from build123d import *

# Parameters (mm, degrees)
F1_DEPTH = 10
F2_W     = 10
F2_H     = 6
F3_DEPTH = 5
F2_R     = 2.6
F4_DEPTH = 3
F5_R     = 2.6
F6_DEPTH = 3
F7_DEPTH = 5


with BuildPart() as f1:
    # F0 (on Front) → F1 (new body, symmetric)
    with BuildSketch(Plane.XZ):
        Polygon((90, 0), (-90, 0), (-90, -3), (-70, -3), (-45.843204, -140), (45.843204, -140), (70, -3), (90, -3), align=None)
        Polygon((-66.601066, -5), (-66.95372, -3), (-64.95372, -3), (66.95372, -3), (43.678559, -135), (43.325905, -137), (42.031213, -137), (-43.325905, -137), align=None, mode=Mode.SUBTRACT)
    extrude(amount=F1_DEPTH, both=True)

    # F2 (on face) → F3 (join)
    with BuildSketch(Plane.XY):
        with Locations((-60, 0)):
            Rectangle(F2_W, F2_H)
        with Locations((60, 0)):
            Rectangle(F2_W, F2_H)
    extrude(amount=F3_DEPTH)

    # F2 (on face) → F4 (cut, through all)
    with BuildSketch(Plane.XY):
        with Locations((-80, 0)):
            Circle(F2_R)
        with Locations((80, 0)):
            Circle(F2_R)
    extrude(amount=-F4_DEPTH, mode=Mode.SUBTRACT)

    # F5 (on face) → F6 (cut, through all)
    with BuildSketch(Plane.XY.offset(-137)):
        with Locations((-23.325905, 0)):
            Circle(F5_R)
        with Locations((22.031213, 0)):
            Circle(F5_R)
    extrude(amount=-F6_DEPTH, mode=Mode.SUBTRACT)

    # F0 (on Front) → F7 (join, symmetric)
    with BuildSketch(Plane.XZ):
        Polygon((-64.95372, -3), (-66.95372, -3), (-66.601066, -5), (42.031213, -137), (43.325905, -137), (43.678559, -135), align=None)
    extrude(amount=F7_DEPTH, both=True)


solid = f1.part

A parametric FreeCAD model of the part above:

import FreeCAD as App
import Part
import Sketcher
Q = App.Units.Quantity

doc = App.newDocument("Part")
body = doc.addObject("PartDesign::Body", "Body")

sketch1 = body.newObject("Sketcher::SketchObject", "Sketch")
sketch1.AttachmentSupport = (doc.getObject("XZ_Plane"), [""])
sketch1.MapMode = "FlatFace"
sketch1.addGeometry(Part.LineSegment(App.Vector(90, 0, 0), App.Vector(-90, 0, 0)), False)
sketch1.addGeometry(Part.LineSegment(App.Vector(-90, 0, 0), App.Vector(-90, -3, 0)), False)
sketch1.addGeometry(Part.LineSegment(App.Vector(-90, -3, 0), App.Vector(-70, -3, 0)), False)
sketch1.addGeometry(Part.LineSegment(App.Vector(-70, -3, 0), App.Vector(-45.8, -140, 0)), False)
sketch1.addGeometry(Part.LineSegment(App.Vector(-45.8, -140, 0), App.Vector(45.8, -140, 0)), False)
sketch1.addGeometry(Part.LineSegment(App.Vector(45.8, -140, 0), App.Vector(70, -3, 0)), False)
sketch1.addGeometry(Part.LineSegment(App.Vector(70, -3, 0), App.Vector(90, -3, 0)), False)
sketch1.addGeometry(Part.LineSegment(App.Vector(90, -3, 0), App.Vector(90, 0, 0)), False)
sketch1.addGeometry(Part.LineSegment(App.Vector(-43.3, -137, 0), App.Vector(-66.6, -5, 0)), False)
sketch1.addGeometry(Part.LineSegment(App.Vector(-66.6, -5, 0), App.Vector(-67, -3, 0)), False)
sketch1.addGeometry(Part.LineSegment(App.Vector(-67, -3, 0), App.Vector(67, -3, 0)), False)
sketch1.addGeometry(Part.LineSegment(App.Vector(67, -3, 0), App.Vector(43.7, -135, 0)), False)
sketch1.addGeometry(Part.LineSegment(App.Vector(43.7, -135, 0), App.Vector(43.3, -137, 0)), False)
sketch1.addGeometry(Part.LineSegment(App.Vector(43.3, -137, 0), App.Vector(-43.3, -137, 0)), False)
sketch1.addConstraint(Sketcher.Constraint("Coincident", 0, 2, 1, 1))
sketch1.addConstraint(Sketcher.Constraint("Coincident", 1, 2, 2, 1))
sketch1.addConstraint(Sketcher.Constraint("Coincident", 2, 2, 3, 1))
sketch1.addConstraint(Sketcher.Constraint("Coincident", 3, 2, 4, 1))
sketch1.addConstraint(Sketcher.Constraint("Coincident", 4, 2, 5, 1))
sketch1.addConstraint(Sketcher.Constraint("Coincident", 5, 2, 6, 1))
sketch1.addConstraint(Sketcher.Constraint("Coincident", 6, 2, 7, 1))
sketch1.addConstraint(Sketcher.Constraint("Coincident", 7, 2, 0, 1))
sketch1.addConstraint(Sketcher.Constraint("Coincident", 8, 2, 9, 1))
sketch1.addConstraint(Sketcher.Constraint("Coincident", 9, 2, 10, 1))
sketch1.addConstraint(Sketcher.Constraint("Coincident", 10, 2, 11, 1))
sketch1.addConstraint(Sketcher.Constraint("Coincident", 11, 2, 12, 1))
sketch1.addConstraint(Sketcher.Constraint("Coincident", 12, 2, 13, 1))
sketch1.addConstraint(Sketcher.Constraint("Coincident", 13, 2, 8, 1))
sketch1.addConstraint(Sketcher.Constraint("Horizontal", 0))
sketch1.addConstraint(Sketcher.Constraint("Vertical", 1))
sketch1.addConstraint(Sketcher.Constraint("Horizontal", 2))
sketch1.addConstraint(Sketcher.Constraint("Horizontal", 4))
sketch1.addConstraint(Sketcher.Constraint("Horizontal", 6))
sketch1.addConstraint(Sketcher.Constraint("Vertical", 7))
sketch1.addConstraint(Sketcher.Constraint("Horizontal", 10))
sketch1.addConstraint(Sketcher.Constraint("Horizontal", 13))
sketch1.addConstraint(Sketcher.Constraint("Symmetric", 0, 2, 7, 2, -1, 1))
sketch1.addConstraint(Sketcher.Constraint("Symmetric", 2, 2, 5, 2, -2))
sketch1.addConstraint(Sketcher.Constraint("Parallel", 3, 8))
sketch1.addConstraint(Sketcher.Constraint("Parallel", 8, 9))
sketch1.addConstraint(Sketcher.Constraint("Parallel", 5, 11))
sketch1.addConstraint(Sketcher.Constraint("Parallel", 11, 12))
sketch1.addConstraint(Sketcher.Constraint("Horizontal", 6, 2, 9, 2))
sketch1.addConstraint(Sketcher.Constraint("Equal", 3, 5))
sketch1.addConstraint(Sketcher.Constraint("Equal", 8, 11))
sketch1.addConstraint(Sketcher.Constraint("DistanceX", 0, 2, 0, 1, Q("180 mm")))
sketch1.addConstraint(Sketcher.Constraint("DistanceX", 2, 1, 2, 2, Q("20 mm")))
sketch1.addConstraint(Sketcher.Constraint("DistanceY", 1, 2, 1, 1, Q("3 mm")))
sketch1.addConstraint(Sketcher.Constraint("Angle", 3, Q("-80 deg")))
sketch1.addConstraint(Sketcher.Constraint("DistanceY", 3, 2, -1, 1, Q("140 mm")))
sketch1.addConstraint(Sketcher.Constraint("DistanceY", 8, 2, -1, 1, Q("5 mm")))
sketch1.addConstraint(Sketcher.Constraint("DistanceY", 11, 2, -1, 1, Q("135 mm")))
sketch1.addConstraint(Sketcher.Constraint("DistanceX", 10, 1, 10, 2, Q("133.90744 mm")))
sketch1.addConstraint(Sketcher.Constraint("DistanceX", 12, 2, 4, 2, Q("2.517299 mm")))
pad1 = body.newObject("PartDesign::Pad", "Pad")
pad1.Profile = sketch1
pad1.Length = 20
pad1.Midplane = True

sketch2 = body.newObject("Sketcher::SketchObject", "Sketch001")
sketch2.AttachmentSupport = (doc.getObject("XY_Plane"), [""])
sketch2.MapMode = "FlatFace"
sketch2.addGeometry(Part.LineSegment(App.Vector(-65, 3, 0), App.Vector(-65, -3, 0)), False)
sketch2.addGeometry(Part.LineSegment(App.Vector(-65, -3, 0), App.Vector(-55, -3, 0)), False)
sketch2.addGeometry(Part.LineSegment(App.Vector(-55, -3, 0), App.Vector(-55, 3, 0)), False)
sketch2.addGeometry(Part.LineSegment(App.Vector(-55, 3, 0), App.Vector(-65, 3, 0)), False)
sketch2.addGeometry(Part.LineSegment(App.Vector(55, 3, 0), App.Vector(55, -3, 0)), False)
sketch2.addGeometry(Part.LineSegment(App.Vector(55, -3, 0), App.Vector(65, -3, 0)), False)
sketch2.addGeometry(Part.LineSegment(App.Vector(65, -3, 0), App.Vector(65, 3, 0)), False)
sketch2.addGeometry(Part.LineSegment(App.Vector(65, 3, 0), App.Vector(55, 3, 0)), False)
sketch2.addConstraint(Sketcher.Constraint("Coincident", 0, 2, 1, 1))
sketch2.addConstraint(Sketcher.Constraint("Coincident", 1, 2, 2, 1))
sketch2.addConstraint(Sketcher.Constraint("Coincident", 2, 2, 3, 1))
sketch2.addConstraint(Sketcher.Constraint("Coincident", 3, 2, 0, 1))
sketch2.addConstraint(Sketcher.Constraint("Coincident", 4, 2, 5, 1))
sketch2.addConstraint(Sketcher.Constraint("Coincident", 5, 2, 6, 1))
sketch2.addConstraint(Sketcher.Constraint("Coincident", 6, 2, 7, 1))
sketch2.addConstraint(Sketcher.Constraint("Coincident", 7, 2, 4, 1))
sketch2.addConstraint(Sketcher.Constraint("Vertical", 0))
sketch2.addConstraint(Sketcher.Constraint("Horizontal", 1))
sketch2.addConstraint(Sketcher.Constraint("Vertical", 2))
sketch2.addConstraint(Sketcher.Constraint("Horizontal", 3))
sketch2.addConstraint(Sketcher.Constraint("Vertical", 4))
sketch2.addConstraint(Sketcher.Constraint("Horizontal", 5))
sketch2.addConstraint(Sketcher.Constraint("Vertical", 6))
sketch2.addConstraint(Sketcher.Constraint("Horizontal", 7))
sketch2.addConstraint(Sketcher.Constraint("Symmetric", 2, 2, 4, 2, -1, 1))
sketch2.addConstraint(Sketcher.Constraint("Symmetric", 0, 2, 6, 2, -1, 1))
sketch2.addConstraint(Sketcher.Constraint("Horizontal", 1, 2, 4, 2))
sketch2.addConstraint(Sketcher.Constraint("DistanceX", 1, 1, 1, 2, Q("10 mm")))
sketch2.addConstraint(Sketcher.Constraint("DistanceY", 0, 2, 0, 1, Q("6 mm")))
sketch2.addConstraint(Sketcher.Constraint("DistanceX", 0, 2, -1, 1, Q("65 mm")))
pad2 = body.newObject("PartDesign::Pad", "Pad001")
pad2.Profile = sketch2
pad2.Length = 5

sketch3 = body.newObject("Sketcher::SketchObject", "Sketch002")
sketch3.AttachmentSupport = (doc.getObject("XY_Plane"), [""])
sketch3.MapMode = "FlatFace"
sketch3.addGeometry(Part.Circle(App.Vector(-80, 0, 0), App.Vector(0, 0, 1), 2.6), False)
sketch3.addGeometry(Part.Circle(App.Vector(80, 0, 0), App.Vector(0, 0, 1), 2.6), False)
sketch3.addConstraint(Sketcher.Constraint("Equal", 0, 1))
sketch3.addConstraint(Sketcher.Constraint("Symmetric", 0, 3, 1, 3, -1, 1))
sketch3.addConstraint(Sketcher.Constraint("PointOnObject", 0, 3, -1))
sketch3.addConstraint(Sketcher.Constraint("Diameter", 0, Q("5.2 mm")))
sketch3.addConstraint(Sketcher.Constraint("DistanceX", 0, 3, -1, 1, Q("80 mm")))
pocket1 = body.newObject("PartDesign::Pocket", "Pocket")
pocket1.Profile = sketch3
pocket1.Type = "ThroughAll"

sketch4 = body.newObject("Sketcher::SketchObject", "Sketch003")
sketch4.AttachmentSupport = (doc.getObject("XY_Plane"), [""])
sketch4.MapMode = "FlatFace"
sketch4.AttachmentOffset = App.Placement(App.Vector(0, 0, -137), App.Rotation())
sketch4.addGeometry(Part.Circle(App.Vector(-23.3, 0, 0), App.Vector(0, 0, 1), 2.6), False)
sketch4.addGeometry(Part.Circle(App.Vector(22, 0, 0), App.Vector(0, 0, 1), 2.6), False)
sketch4.addConstraint(Sketcher.Constraint("Equal", 0, 1))
sketch4.addConstraint(Sketcher.Constraint("PointOnObject", 0, 3, -1))
sketch4.addConstraint(Sketcher.Constraint("PointOnObject", 1, 3, -1))
sketch4.addConstraint(Sketcher.Constraint("Diameter", 0, Q("5.2 mm")))
sketch4.addConstraint(Sketcher.Constraint("DistanceX", 0, 3, -1, 1, Q("23.325905 mm")))
sketch4.addConstraint(Sketcher.Constraint("DistanceX", -1, 1, 1, 3, Q("22.031213 mm")))
pocket2 = body.newObject("PartDesign::Pocket", "Pocket001")
pocket2.Profile = sketch4
pocket2.Type = "ThroughAll"

sketch5 = body.newObject("Sketcher::SketchObject", "Sketch004")
sketch5.AttachmentSupport = (doc.getObject("XZ_Plane"), [""])
sketch5.MapMode = "FlatFace"
sketch5.addGeometry(Part.LineSegment(App.Vector(-65, -3, 0), App.Vector(-67, -3, 0)), False)
sketch5.addGeometry(Part.LineSegment(App.Vector(-67, -3, 0), App.Vector(-66.6, -5, 0)), False)
sketch5.addGeometry(Part.LineSegment(App.Vector(-66.6, -5, 0), App.Vector(42, -137, 0)), False)
sketch5.addGeometry(Part.LineSegment(App.Vector(42, -137, 0), App.Vector(43.3, -137, 0)), False)
sketch5.addGeometry(Part.LineSegment(App.Vector(43.3, -137, 0), App.Vector(43.7, -135, 0)), False)
sketch5.addGeometry(Part.LineSegment(App.Vector(43.7, -135, 0), App.Vector(-65, -3, 0)), False)
sketch5.addConstraint(Sketcher.Constraint("Coincident", 0, 2, 1, 1))
sketch5.addConstraint(Sketcher.Constraint("Coincident", 1, 2, 2, 1))
sketch5.addConstraint(Sketcher.Constraint("Coincident", 2, 2, 3, 1))
sketch5.addConstraint(Sketcher.Constraint("Coincident", 3, 2, 4, 1))
sketch5.addConstraint(Sketcher.Constraint("Coincident", 4, 2, 5, 1))
sketch5.addConstraint(Sketcher.Constraint("Coincident", 5, 2, 0, 1))
sketch5.addConstraint(Sketcher.Constraint("Horizontal", 0))
sketch5.addConstraint(Sketcher.Constraint("Horizontal", 3))
sketch5.addConstraint(Sketcher.Constraint("Parallel", 2, 5))
sketch5.addConstraint(Sketcher.Constraint("Equal", 1, 4))
sketch5.addConstraint(Sketcher.Constraint("Equal", 2, 5))
sketch5.addConstraint(Sketcher.Constraint("DistanceX", 0, 2, 0, 1, Q("2 mm")))
sketch5.addConstraint(Sketcher.Constraint("Angle", 1, Q("-79.999999 deg")))
sketch5.addConstraint(Sketcher.Constraint("DistanceY", 0, 2, -1, 1, Q("3 mm")))
sketch5.addConstraint(Sketcher.Constraint("DistanceY", 1, 2, -1, 1, Q("5 mm")))
sketch5.addConstraint(Sketcher.Constraint("DistanceY", 2, 2, -1, 1, Q("137 mm")))
sketch5.addConstraint(Sketcher.Constraint("Distance", 2, Q("170.953128 mm")))
sketch5.addConstraint(Sketcher.Constraint("DistanceX", 0, 2, -1, 1, Q("66.95372 mm")))
pad3 = body.newObject("PartDesign::Pad", "Pad002")
pad3.Profile = sketch5
pad3.Length = 10
pad3.Midplane = True

doc.recompute()
